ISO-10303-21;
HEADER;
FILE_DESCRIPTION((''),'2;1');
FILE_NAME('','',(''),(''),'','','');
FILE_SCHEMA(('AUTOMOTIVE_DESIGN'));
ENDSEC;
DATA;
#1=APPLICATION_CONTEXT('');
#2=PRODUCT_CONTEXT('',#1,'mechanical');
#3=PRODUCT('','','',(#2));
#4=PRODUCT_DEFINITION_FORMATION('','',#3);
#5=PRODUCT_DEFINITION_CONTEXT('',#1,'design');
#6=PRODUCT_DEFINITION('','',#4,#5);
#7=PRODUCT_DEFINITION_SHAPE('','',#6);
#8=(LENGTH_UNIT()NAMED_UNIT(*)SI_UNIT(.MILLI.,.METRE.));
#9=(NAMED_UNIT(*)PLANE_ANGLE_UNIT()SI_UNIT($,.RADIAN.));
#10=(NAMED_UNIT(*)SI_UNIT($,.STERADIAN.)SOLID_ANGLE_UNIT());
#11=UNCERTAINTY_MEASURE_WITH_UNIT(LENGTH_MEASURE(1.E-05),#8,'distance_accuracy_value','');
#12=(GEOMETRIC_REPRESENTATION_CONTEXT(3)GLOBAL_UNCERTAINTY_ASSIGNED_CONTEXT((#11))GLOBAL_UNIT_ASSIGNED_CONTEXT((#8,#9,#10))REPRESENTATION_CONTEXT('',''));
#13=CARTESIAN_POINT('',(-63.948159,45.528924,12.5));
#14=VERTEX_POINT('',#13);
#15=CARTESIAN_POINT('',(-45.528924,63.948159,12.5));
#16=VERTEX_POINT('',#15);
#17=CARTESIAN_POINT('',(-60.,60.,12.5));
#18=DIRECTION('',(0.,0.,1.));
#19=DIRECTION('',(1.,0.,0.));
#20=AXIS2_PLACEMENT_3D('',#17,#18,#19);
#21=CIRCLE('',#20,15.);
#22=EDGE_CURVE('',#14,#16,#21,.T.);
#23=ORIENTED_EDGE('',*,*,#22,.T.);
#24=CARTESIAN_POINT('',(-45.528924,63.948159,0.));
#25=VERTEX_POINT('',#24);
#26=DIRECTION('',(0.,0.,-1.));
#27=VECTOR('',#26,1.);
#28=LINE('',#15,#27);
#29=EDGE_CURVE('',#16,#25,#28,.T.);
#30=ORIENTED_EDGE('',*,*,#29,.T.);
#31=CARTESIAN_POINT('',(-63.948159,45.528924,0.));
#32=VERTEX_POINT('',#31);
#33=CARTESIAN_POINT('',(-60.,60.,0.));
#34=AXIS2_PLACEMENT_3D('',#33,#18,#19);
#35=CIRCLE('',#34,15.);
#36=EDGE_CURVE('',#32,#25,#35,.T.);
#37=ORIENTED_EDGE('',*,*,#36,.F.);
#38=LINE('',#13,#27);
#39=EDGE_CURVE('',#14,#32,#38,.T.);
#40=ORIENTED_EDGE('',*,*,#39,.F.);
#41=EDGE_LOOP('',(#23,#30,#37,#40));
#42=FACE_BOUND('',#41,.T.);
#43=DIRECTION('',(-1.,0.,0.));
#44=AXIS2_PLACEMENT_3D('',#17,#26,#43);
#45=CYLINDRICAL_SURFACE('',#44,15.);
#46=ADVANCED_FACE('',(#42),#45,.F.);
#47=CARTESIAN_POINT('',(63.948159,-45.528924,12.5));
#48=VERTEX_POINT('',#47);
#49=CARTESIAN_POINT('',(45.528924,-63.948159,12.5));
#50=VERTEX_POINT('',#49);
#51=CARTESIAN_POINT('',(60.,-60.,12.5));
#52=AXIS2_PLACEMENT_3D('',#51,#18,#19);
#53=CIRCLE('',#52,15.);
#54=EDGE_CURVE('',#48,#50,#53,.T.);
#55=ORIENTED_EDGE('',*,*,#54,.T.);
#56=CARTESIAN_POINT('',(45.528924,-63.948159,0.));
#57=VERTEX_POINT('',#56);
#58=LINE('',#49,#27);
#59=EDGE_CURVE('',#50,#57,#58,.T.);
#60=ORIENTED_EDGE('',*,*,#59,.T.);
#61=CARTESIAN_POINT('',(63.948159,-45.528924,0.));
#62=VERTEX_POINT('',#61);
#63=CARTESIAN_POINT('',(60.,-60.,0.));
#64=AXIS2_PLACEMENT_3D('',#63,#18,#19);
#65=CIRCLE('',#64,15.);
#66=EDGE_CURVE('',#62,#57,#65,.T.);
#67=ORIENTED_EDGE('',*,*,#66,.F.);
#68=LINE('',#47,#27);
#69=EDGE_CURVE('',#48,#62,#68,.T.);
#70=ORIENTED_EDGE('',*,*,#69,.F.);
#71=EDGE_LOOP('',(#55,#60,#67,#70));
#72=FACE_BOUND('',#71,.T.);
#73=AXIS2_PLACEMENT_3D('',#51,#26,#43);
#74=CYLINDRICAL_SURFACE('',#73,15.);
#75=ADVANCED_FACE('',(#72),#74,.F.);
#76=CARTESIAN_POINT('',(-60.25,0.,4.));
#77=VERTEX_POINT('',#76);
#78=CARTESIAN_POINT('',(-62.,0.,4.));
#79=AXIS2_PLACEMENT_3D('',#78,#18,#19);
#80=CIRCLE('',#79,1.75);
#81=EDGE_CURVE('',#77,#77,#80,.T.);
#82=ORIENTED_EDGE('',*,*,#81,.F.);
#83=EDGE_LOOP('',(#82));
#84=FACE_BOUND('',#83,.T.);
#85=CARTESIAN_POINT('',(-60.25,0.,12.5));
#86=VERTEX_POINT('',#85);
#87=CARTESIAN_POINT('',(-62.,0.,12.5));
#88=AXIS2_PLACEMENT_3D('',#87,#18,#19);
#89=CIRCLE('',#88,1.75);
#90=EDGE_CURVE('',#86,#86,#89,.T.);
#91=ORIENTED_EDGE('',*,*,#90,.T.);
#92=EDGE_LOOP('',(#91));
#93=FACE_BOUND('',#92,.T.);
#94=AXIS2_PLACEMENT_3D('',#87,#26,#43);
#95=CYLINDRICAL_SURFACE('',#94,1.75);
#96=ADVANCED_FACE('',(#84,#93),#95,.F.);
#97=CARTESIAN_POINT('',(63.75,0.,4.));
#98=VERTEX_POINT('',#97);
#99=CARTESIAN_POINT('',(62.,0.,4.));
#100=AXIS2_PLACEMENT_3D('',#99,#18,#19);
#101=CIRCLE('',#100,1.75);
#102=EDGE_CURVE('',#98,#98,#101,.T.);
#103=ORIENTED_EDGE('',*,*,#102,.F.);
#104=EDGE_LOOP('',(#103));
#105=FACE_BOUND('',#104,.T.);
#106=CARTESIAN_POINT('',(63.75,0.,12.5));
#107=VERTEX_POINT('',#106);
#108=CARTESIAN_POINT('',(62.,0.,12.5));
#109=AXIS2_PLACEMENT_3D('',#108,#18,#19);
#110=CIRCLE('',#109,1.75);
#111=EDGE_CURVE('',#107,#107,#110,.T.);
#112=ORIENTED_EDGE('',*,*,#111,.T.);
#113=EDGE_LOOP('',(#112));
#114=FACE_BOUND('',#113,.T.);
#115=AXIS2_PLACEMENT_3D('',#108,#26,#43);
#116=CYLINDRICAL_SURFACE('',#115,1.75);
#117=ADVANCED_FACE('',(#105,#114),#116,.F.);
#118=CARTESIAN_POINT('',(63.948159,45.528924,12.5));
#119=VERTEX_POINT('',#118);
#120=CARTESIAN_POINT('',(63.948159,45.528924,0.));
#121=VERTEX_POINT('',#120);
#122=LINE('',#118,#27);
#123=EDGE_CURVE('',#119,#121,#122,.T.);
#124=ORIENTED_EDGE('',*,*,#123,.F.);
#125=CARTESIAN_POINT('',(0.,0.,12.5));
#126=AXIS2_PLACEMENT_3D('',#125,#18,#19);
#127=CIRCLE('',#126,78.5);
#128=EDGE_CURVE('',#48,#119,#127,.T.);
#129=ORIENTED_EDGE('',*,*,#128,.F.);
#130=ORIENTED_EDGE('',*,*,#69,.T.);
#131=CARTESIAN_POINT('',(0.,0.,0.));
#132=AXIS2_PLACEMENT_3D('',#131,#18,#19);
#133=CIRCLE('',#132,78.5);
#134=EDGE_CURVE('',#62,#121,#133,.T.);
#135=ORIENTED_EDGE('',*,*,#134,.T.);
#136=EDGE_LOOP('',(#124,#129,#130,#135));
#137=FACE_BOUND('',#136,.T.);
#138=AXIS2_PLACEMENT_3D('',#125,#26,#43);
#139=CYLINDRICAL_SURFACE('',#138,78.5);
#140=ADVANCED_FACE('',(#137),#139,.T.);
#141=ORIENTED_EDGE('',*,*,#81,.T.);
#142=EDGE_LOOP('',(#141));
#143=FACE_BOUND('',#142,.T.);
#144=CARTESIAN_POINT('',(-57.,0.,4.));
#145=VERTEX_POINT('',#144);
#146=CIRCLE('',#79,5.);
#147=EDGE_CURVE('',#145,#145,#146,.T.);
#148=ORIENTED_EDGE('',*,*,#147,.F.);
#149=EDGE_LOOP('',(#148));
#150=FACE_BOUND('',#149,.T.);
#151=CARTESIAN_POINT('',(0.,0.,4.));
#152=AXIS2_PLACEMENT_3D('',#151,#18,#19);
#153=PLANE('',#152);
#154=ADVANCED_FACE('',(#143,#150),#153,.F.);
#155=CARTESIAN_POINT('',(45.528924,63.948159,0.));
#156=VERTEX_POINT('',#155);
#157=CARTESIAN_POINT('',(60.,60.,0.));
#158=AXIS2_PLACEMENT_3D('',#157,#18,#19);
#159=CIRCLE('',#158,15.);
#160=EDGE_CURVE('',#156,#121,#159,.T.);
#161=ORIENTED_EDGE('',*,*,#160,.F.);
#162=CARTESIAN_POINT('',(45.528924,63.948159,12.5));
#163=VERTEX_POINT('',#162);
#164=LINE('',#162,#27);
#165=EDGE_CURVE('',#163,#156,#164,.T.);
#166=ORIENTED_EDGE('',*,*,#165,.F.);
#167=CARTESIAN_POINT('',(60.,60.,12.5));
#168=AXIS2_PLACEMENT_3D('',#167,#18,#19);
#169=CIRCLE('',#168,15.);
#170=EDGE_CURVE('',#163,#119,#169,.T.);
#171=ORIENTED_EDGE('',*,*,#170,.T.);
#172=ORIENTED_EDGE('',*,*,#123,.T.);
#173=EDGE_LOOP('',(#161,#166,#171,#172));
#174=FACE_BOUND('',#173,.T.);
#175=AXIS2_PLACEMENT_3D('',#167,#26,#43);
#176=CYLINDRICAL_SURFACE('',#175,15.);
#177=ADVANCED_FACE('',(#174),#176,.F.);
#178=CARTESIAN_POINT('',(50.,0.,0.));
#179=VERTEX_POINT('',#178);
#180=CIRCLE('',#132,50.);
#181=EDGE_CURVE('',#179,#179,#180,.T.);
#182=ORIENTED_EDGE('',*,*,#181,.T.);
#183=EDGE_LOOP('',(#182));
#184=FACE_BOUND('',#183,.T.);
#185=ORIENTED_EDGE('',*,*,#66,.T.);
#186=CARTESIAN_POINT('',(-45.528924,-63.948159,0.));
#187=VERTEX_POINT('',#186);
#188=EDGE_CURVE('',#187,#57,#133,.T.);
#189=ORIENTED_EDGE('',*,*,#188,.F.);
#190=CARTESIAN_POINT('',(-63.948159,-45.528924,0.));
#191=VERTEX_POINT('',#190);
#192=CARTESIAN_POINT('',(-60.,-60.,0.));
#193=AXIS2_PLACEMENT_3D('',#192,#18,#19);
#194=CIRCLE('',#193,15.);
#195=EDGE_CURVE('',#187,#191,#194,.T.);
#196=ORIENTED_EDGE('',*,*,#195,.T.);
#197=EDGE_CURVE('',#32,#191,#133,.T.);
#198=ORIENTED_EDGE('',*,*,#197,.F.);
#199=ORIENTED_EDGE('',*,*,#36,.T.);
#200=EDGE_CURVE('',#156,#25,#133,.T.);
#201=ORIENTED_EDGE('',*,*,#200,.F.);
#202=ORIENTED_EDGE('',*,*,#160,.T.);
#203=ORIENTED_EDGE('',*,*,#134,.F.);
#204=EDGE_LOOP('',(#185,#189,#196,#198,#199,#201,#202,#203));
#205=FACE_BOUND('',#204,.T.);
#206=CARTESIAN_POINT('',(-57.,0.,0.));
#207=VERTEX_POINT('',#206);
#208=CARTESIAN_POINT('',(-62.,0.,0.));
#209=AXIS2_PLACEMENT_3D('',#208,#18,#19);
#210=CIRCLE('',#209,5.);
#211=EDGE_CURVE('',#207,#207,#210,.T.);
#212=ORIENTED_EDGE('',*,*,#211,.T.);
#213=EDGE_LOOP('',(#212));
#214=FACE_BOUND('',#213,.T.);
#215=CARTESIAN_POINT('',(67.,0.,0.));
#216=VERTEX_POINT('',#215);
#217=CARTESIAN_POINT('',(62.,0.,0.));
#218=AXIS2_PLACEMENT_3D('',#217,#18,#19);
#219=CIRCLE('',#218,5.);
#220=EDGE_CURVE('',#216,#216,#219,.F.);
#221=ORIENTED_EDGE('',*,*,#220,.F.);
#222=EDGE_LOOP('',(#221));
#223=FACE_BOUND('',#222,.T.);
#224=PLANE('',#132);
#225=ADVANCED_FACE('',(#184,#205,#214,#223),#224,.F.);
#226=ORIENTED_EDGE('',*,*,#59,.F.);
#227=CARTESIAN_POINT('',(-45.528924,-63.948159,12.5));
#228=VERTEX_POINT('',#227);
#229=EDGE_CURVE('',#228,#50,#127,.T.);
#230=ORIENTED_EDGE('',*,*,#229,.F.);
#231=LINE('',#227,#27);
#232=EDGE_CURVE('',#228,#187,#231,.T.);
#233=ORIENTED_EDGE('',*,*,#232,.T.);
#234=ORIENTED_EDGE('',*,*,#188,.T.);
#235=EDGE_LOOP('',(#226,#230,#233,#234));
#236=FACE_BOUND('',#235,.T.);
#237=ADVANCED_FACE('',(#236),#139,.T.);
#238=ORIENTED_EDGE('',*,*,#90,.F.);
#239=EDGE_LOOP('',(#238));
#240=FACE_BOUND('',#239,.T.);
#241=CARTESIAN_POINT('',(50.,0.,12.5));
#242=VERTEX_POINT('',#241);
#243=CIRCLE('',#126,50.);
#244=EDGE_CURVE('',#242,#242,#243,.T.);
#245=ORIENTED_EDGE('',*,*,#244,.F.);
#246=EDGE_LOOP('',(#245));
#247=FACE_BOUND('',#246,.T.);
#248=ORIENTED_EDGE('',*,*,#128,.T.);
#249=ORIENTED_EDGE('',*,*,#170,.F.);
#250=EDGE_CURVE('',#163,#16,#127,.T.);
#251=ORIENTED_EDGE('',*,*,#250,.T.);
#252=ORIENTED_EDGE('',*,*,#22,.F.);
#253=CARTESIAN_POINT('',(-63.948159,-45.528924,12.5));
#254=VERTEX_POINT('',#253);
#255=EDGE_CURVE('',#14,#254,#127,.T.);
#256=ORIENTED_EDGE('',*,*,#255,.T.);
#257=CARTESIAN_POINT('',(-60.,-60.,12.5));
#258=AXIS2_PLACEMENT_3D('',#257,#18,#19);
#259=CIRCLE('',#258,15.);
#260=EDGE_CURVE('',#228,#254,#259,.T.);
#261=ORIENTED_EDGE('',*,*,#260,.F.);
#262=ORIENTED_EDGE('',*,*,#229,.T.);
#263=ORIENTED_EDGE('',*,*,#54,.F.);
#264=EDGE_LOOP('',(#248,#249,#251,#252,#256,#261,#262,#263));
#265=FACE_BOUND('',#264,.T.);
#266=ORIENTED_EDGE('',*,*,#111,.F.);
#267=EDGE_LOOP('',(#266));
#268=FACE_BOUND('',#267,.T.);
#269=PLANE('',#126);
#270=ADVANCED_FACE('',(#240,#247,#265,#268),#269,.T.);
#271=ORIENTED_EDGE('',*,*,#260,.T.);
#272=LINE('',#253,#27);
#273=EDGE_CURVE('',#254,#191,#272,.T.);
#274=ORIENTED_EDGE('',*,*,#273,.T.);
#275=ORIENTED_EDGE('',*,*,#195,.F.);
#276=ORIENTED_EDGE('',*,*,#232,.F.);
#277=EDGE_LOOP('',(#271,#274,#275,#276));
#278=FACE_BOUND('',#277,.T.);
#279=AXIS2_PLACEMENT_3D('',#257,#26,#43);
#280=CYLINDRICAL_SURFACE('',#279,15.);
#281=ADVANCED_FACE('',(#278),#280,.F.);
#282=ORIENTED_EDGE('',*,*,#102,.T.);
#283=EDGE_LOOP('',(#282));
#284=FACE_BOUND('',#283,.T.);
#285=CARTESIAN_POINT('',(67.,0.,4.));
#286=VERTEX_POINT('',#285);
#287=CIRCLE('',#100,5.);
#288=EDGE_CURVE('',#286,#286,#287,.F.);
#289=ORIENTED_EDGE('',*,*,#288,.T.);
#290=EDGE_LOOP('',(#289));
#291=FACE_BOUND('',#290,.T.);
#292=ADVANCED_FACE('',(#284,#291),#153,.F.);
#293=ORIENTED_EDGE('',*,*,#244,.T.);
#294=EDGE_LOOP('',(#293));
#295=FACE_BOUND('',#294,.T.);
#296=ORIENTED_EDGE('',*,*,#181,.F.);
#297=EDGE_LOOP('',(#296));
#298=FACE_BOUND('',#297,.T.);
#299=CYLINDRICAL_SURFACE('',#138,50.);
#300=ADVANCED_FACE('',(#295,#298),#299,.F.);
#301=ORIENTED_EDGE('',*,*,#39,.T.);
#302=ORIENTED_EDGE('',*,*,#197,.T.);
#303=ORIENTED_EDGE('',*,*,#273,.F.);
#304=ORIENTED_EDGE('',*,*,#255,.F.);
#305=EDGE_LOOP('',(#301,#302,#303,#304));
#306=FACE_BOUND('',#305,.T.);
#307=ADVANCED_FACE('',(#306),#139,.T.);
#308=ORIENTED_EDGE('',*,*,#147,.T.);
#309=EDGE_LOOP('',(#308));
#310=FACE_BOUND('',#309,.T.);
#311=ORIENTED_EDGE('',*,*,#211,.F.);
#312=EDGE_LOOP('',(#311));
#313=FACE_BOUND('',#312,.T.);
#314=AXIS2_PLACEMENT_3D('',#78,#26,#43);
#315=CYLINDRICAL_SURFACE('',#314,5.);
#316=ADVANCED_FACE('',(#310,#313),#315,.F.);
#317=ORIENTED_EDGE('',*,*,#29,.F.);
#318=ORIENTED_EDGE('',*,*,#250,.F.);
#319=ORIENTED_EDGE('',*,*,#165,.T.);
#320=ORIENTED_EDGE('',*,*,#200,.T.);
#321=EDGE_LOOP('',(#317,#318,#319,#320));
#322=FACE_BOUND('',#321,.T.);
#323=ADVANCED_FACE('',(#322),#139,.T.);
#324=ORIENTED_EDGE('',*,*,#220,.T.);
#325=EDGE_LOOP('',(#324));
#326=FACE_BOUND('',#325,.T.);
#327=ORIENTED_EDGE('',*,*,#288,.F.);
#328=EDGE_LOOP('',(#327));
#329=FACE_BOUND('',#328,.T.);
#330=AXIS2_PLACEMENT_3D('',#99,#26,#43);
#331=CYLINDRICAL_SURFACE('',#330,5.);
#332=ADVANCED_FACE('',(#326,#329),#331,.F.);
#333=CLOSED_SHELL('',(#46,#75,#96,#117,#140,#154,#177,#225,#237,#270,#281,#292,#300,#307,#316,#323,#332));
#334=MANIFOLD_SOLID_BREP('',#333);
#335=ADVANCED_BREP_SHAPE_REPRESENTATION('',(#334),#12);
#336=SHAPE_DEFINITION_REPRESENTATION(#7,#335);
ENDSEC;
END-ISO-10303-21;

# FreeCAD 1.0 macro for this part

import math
import FreeCAD as App
import Part
import Sketcher
from FreeCAD import Vector
Q = App.Units.Quantity

doc = App.newDocument("Part")
body = doc.addObject("PartDesign::Body", "Body")

# Sketch on XY plane
sketch1 = body.newObject("Sketcher::SketchObject", "Sketch")
sketch1.AttachmentSupport = (doc.getObject("XY_Plane"), [""])
sketch1.MapMode = "FlatFace"
sketch1.addGeometry(Part.ArcOfCircle(Part.Circle(Vector(0, 0, 0), Vector(0, 0, 1), 78.5), math.radians(-35), math.radians(35)), False)
sketch1.addGeometry(Part.ArcOfCircle(Part.Circle(Vector(60, 60, 0), Vector(0, 0, 1), 15), math.radians(165), math.radians(285)), False)
sketch1.addGeometry(Part.ArcOfCircle(Part.Circle(Vector(0, 0, 0), Vector(0, 0, 1), 78.5), math.radians(55), math.radians(125)), False)
sketch1.addGeometry(Part.ArcOfCircle(Part.Circle(Vector(-60, 60, 0), Vector(0, 0, 1), 15), math.radians(-105), math.radians(15)), False)
sketch1.addGeometry(Part.ArcOfCircle(Part.Circle(Vector(0, 0, 0), Vector(0, 0, 1), 78.5), math.radians(145), math.radians(215)), False)
sketch1.addGeometry(Part.ArcOfCircle(Part.Circle(Vector(-60, -60, 0), Vector(0, 0, 1), 15), math.radians(-15), math.radians(105)), False)
sketch1.addGeometry(Part.ArcOfCircle(Part.Circle(Vector(0, 0, 0), Vector(0, 0, 1), 78.5), math.radians(-125), math.radians(-55)), False)
sketch1.addGeometry(Part.ArcOfCircle(Part.Circle(Vector(60, -60, 0), Vector(0, 0, 1), 15), math.radians(75), math.radians(195)), False)
sketch1.addGeometry(Part.Circle(Vector(-62, 0, 0), Vector(0, 0, 1), 1.8), False)
sketch1.addGeometry(Part.Circle(Vector(0, 0, 0), Vector(0, 0, 1), 50), False)
sketch1.addGeometry(Part.Circle(Vector(62, 0, 0), Vector(0, 0, 1), 1.8), False)
sketch1.addConstraint(Sketcher.Constraint("Coincident", 0, 2, 1, 2))
sketch1.addConstraint(Sketcher.Constraint("Coincident", 1, 1, 2, 1))
sketch1.addConstraint(Sketcher.Constraint("Coincident", 2, 2, 3, 2))
sketch1.addConstraint(Sketcher.Constraint("Coincident", 3, 1, 4, 1))
sketch1.addConstraint(Sketcher.Constraint("Coincident", 4, 2, 5, 2))
sketch1.addConstraint(Sketcher.Constraint("Coincident", 5, 1, 6, 1))
sketch1.addConstraint(Sketcher.Constraint("Coincident", 6, 2, 7, 2))
sketch1.addConstraint(Sketcher.Constraint("Coincident", 7, 1, 0, 1))
sketch1.addConstraint(Sketcher.Constraint("Coincident", 0, 3, -1, 1))
sketch1.addConstraint(Sketcher.Constraint("Coincident", 2, 3, -1, 1))
sketch1.addConstraint(Sketcher.Constraint("Coincident", 4, 3, -1, 1))
sketch1.addConstraint(Sketcher.Constraint("Coincident", 6, 3, -1, 1))
sketch1.addConstraint(Sketcher.Constraint("Coincident", 9, 3, -1, 1))
sketch1.addConstraint(Sketcher.Constraint("Equal", 0, 2))
sketch1.addConstraint(Sketcher.Constraint("Equal", 1, 3))
sketch1.addConstraint(Sketcher.Constraint("Equal", 2, 4))
sketch1.addConstraint(Sketcher.Constraint("Equal", 3, 5))
sketch1.addConstraint(Sketcher.Constraint("Equal", 4, 6))
sketch1.addConstraint(Sketcher.Constraint("Equal", 5, 7))
sketch1.addConstraint(Sketcher.Constraint("Equal", 8, 10))
sketch1.addConstraint(Sketcher.Constraint("Symmetric", 1, 3, 5, 3, -1, 1))
sketch1.addConstraint(Sketcher.Constraint("Symmetric", 3, 3, 7, 3, -1, 1))
sketch1.addConstraint(Sketcher.Constraint("Symmetric", 8, 3, 10, 3, -1, 1))
sketch1.addConstraint(Sketcher.Constraint("Symmetric", 1, 3, 3, 3, -2))
sketch1.addConstraint(Sketcher.Constraint("PointOnObject", 8, 3, -1))
sketch1.addConstraint(Sketcher.Constraint("Diameter", 9, Q("100 mm")))
sketch1.addConstraint(Sketcher.Constraint("Radius", 1, Q("15 mm")))
sketch1.addConstraint(Sketcher.Constraint("Diameter", 8, Q("3.5 mm")))
sketch1.addConstraint(Sketcher.Constraint("Radius", 0, Q("78.5 mm")))
sketch1.addConstraint(Sketcher.Constraint("DistanceX", -1, 1, 1, 3, Q("60 mm")))
sketch1.addConstraint(Sketcher.Constraint("DistanceY", -1, 1, 1, 3, Q("60 mm")))
sketch1.addConstraint(Sketcher.Constraint("DistanceX", 8, 3, -1, 1, Q("62 mm")))
pad1 = body.newObject("PartDesign::Pad", "Pad")
pad1.Profile = sketch1
pad1.Length = 12.5

# Sketch on XY plane
sketch2 = body.newObject("Sketcher::SketchObject", "Sketch001")
sketch2.AttachmentSupport = (doc.getObject("XY_Plane"), [""])
sketch2.MapMode = "FlatFace"
sketch2.addGeometry(Part.Circle(Vector(-62, 0, 0), Vector(0, 0, 1), 5), False)
sketch2.addGeometry(Part.Circle(Vector(62, 0, 0), Vector(0, 0, 1), 5), False)
sketch2.addConstraint(Sketcher.Constraint("Equal", 0, 1))
sketch2.addConstraint(Sketcher.Constraint("Symmetric", 0, 3, 1, 3, -1, 1))
sketch2.addConstraint(Sketcher.Constraint("PointOnObject", 0, 3, -1))
sketch2.addConstraint(Sketcher.Constraint("Diameter", 0, Q("10 mm")))
sketch2.addConstraint(Sketcher.Constraint("DistanceX", 0, 3, -1, 1, Q("62 mm")))
pocket1 = body.newObject("PartDesign::Pocket", "Pocket")
pocket1.Profile = sketch2
pocket1.Length = 4
pocket1.Reversed = True

doc.recompute()
